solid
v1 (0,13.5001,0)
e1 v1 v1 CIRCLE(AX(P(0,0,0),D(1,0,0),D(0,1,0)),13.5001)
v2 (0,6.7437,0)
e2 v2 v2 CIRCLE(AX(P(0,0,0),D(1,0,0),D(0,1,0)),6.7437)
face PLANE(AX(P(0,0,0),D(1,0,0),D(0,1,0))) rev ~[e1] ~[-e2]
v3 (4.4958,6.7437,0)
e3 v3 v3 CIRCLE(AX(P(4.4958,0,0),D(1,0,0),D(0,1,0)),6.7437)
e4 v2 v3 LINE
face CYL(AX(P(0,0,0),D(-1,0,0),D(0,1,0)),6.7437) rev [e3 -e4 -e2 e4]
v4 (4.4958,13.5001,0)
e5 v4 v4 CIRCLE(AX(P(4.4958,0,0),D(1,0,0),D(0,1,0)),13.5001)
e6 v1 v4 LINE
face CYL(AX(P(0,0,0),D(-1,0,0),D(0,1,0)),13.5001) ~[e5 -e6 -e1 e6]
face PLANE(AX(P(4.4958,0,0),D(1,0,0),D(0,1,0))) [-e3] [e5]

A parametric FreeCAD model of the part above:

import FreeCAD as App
import Part
import Sketcher

V = App.Vector
Q = App.Units.Quantity

doc = App.newDocument("Part")
body = doc.addObject("PartDesign::Body", "Body")

sketch1 = body.newObject("Sketcher::SketchObject", "Sketch")
sketch1.AttachmentSupport = (doc.getObject("YZ_Plane"), [""])
sketch1.MapMode = "FlatFace"
sketch1.addGeometry([
    Part.Circle(V(0, 0, 0), V(0, 0, 1), 13.5001),
    Part.Circle(V(0, 0, 0), V(0, 0, 1), 6.7437),
], False)
sketch1.addConstraint([
    Sketcher.Constraint("Coincident", 0, 3, -1, 1),
    Sketcher.Constraint("Coincident", 1, 3, -1, 1),
    Sketcher.Constraint("Diameter", 0, Q("1.063 in")),
    Sketcher.Constraint("Diameter", 1, Q("0.531 in")),
])
pad1 = body.newObject("PartDesign::Pad", "Pad")
pad1.Profile = sketch1
pad1.Length = Q("0.177 in")

doc.recompute()
